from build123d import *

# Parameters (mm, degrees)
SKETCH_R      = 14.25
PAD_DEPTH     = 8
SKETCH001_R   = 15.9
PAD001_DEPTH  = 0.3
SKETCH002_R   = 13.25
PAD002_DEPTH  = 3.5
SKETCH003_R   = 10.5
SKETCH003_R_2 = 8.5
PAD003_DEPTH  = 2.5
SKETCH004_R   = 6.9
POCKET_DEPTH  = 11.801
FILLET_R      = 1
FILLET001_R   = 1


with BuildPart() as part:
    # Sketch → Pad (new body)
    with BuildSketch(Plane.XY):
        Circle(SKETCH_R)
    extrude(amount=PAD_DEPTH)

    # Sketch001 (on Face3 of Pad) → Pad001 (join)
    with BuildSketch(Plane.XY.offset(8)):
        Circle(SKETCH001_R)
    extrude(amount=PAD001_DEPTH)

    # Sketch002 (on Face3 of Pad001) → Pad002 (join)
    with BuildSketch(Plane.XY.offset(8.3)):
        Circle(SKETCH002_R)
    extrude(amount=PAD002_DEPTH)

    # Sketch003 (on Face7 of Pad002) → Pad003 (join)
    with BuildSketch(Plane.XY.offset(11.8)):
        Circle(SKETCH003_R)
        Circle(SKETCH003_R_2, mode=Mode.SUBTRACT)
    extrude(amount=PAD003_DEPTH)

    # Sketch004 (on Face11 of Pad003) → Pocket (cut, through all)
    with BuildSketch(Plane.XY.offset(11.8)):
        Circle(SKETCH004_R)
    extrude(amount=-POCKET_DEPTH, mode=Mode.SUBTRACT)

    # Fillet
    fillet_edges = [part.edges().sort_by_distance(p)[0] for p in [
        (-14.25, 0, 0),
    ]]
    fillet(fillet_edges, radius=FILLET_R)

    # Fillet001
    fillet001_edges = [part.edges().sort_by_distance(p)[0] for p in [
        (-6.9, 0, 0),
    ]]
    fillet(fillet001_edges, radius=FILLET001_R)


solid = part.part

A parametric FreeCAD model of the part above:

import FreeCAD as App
import Part
import Sketcher
Q = App.Units.Quantity


def edges_at(feature, points):
    """Names of the edges that pass closest to the given points."""
    edges = feature.Shape.Edges
    near = lambda p: min(range(len(edges)), key=lambda i: edges[i].distToShape(Part.Vertex(*p))[0])
    return sorted({f"Edge{near(p) + 1}" for p in points})

doc = App.newDocument("Part")
body = doc.addObject("PartDesign::Body", "Body")

sketch1 = body.newObject("Sketcher::SketchObject", "Sketch")
sketch1.AttachmentSupport = (doc.getObject("XY_Plane"), [""])
sketch1.MapMode = "FlatFace"
sketch1.addGeometry(Part.Circle(App.Vector(0, 0, 0), App.Vector(0, 0, 1), 14.25), False)
sketch1.addConstraint([
    Sketcher.Constraint("Coincident", 0, 3, -1, 1),
    Sketcher.Constraint("Diameter", 0, Q("28.5 mm")),
])
pad1 = body.newObject("PartDesign::Pad", "Pad")
pad1.Profile = sketch1
pad1.Length = 8

sketch2 = body.newObject("Sketcher::SketchObject", "Sketch001")
sketch2.AttachmentSupport = (doc.getObject("XY_Plane"), [""])
sketch2.MapMode = "FlatFace"
sketch2.AttachmentOffset = App.Placement(App.Vector(0, 0, 8), App.Rotation())
sketch2.addGeometry(Part.Circle(App.Vector(0, 0, 0), App.Vector(0, 0, 1), 15.9), False)
sketch2.addConstraint([
    Sketcher.Constraint("Coincident", 0, 3, -1, 1),
    Sketcher.Constraint("Diameter", 0, Q("31.8 mm")),
])
pad2 = body.newObject("PartDesign::Pad", "Pad001")
pad2.Profile = sketch2
pad2.Length = 0.3

sketch3 = body.newObject("Sketcher::SketchObject", "Sketch002")
sketch3.AttachmentSupport = (doc.getObject("XY_Plane"), [""])
sketch3.MapMode = "FlatFace"
sketch3.AttachmentOffset = App.Placement(App.Vector(0, 0, 8.3), App.Rotation())
sketch3.addGeometry(Part.Circle(App.Vector(0, 0, 0), App.Vector(0, 0, 1), 13.25), False)
sketch3.addConstraint([
    Sketcher.Constraint("Coincident", 0, 3, -1, 1),
    Sketcher.Constraint("Diameter", 0, Q("26.5 mm")),
])
pad3 = body.newObject("PartDesign::Pad", "Pad002")
pad3.Profile = sketch3
pad3.Length = 3.5

sketch4 = body.newObject("Sketcher::SketchObject", "Sketch003")
sketch4.AttachmentSupport = (doc.getObject("XY_Plane"), [""])
sketch4.MapMode = "FlatFace"
sketch4.AttachmentOffset = App.Placement(App.Vector(0, 0, 11.8), App.Rotation())
sketch4.addGeometry([
    Part.Circle(App.Vector(0, 0, 0), App.Vector(0, 0, 1), 10.5),
    Part.Circle(App.Vector(0, 0, 0), App.Vector(0, 0, 1), 8.5),
], False)
sketch4.addConstraint([
    Sketcher.Constraint("Coincident", 0, 3, -1, 1),
    Sketcher.Constraint("Coincident", 1, 3, -1, 1),
    Sketcher.Constraint("Diameter", 0, Q("21 mm")),
    Sketcher.Constraint("Diameter", 1, Q("17 mm")),
])
pad4 = body.newObject("PartDesign::Pad", "Pad003")
pad4.Profile = sketch4
pad4.Length = 2.5

sketch5 = body.newObject("Sketcher::SketchObject", "Sketch004")
sketch5.AttachmentSupport = (doc.getObject("XY_Plane"), [""])
sketch5.MapMode = "FlatFace"
sketch5.AttachmentOffset = App.Placement(App.Vector(0, 0, 11.8), App.Rotation())
sketch5.addGeometry(Part.Circle(App.Vector(0, 0, 0), App.Vector(0, 0, 1), 6.9), False)
sketch5.addConstraint([
    Sketcher.Constraint("Coincident", 0, 3, -1, 1),
    Sketcher.Constraint("Diameter", 0, Q("13.8 mm")),
])
pocket1 = body.newObject("PartDesign::Pocket", "Pocket")
pocket1.Profile = sketch5
pocket1.Type = "ThroughAll"
doc.recompute()

fillet = body.newObject("PartDesign::Fillet", "Fillet")
fillet.Base = (pocket1, edges_at(pocket1, [(-14.25, 0, 0)]))
fillet.Radius = 1
doc.recompute()

fillet2 = body.newObject("PartDesign::Fillet", "Fillet001")
fillet2.Base = (fillet, edges_at(fillet, [(-6.9, 0, 0)]))
fillet2.Radius = 1

doc.recompute()
